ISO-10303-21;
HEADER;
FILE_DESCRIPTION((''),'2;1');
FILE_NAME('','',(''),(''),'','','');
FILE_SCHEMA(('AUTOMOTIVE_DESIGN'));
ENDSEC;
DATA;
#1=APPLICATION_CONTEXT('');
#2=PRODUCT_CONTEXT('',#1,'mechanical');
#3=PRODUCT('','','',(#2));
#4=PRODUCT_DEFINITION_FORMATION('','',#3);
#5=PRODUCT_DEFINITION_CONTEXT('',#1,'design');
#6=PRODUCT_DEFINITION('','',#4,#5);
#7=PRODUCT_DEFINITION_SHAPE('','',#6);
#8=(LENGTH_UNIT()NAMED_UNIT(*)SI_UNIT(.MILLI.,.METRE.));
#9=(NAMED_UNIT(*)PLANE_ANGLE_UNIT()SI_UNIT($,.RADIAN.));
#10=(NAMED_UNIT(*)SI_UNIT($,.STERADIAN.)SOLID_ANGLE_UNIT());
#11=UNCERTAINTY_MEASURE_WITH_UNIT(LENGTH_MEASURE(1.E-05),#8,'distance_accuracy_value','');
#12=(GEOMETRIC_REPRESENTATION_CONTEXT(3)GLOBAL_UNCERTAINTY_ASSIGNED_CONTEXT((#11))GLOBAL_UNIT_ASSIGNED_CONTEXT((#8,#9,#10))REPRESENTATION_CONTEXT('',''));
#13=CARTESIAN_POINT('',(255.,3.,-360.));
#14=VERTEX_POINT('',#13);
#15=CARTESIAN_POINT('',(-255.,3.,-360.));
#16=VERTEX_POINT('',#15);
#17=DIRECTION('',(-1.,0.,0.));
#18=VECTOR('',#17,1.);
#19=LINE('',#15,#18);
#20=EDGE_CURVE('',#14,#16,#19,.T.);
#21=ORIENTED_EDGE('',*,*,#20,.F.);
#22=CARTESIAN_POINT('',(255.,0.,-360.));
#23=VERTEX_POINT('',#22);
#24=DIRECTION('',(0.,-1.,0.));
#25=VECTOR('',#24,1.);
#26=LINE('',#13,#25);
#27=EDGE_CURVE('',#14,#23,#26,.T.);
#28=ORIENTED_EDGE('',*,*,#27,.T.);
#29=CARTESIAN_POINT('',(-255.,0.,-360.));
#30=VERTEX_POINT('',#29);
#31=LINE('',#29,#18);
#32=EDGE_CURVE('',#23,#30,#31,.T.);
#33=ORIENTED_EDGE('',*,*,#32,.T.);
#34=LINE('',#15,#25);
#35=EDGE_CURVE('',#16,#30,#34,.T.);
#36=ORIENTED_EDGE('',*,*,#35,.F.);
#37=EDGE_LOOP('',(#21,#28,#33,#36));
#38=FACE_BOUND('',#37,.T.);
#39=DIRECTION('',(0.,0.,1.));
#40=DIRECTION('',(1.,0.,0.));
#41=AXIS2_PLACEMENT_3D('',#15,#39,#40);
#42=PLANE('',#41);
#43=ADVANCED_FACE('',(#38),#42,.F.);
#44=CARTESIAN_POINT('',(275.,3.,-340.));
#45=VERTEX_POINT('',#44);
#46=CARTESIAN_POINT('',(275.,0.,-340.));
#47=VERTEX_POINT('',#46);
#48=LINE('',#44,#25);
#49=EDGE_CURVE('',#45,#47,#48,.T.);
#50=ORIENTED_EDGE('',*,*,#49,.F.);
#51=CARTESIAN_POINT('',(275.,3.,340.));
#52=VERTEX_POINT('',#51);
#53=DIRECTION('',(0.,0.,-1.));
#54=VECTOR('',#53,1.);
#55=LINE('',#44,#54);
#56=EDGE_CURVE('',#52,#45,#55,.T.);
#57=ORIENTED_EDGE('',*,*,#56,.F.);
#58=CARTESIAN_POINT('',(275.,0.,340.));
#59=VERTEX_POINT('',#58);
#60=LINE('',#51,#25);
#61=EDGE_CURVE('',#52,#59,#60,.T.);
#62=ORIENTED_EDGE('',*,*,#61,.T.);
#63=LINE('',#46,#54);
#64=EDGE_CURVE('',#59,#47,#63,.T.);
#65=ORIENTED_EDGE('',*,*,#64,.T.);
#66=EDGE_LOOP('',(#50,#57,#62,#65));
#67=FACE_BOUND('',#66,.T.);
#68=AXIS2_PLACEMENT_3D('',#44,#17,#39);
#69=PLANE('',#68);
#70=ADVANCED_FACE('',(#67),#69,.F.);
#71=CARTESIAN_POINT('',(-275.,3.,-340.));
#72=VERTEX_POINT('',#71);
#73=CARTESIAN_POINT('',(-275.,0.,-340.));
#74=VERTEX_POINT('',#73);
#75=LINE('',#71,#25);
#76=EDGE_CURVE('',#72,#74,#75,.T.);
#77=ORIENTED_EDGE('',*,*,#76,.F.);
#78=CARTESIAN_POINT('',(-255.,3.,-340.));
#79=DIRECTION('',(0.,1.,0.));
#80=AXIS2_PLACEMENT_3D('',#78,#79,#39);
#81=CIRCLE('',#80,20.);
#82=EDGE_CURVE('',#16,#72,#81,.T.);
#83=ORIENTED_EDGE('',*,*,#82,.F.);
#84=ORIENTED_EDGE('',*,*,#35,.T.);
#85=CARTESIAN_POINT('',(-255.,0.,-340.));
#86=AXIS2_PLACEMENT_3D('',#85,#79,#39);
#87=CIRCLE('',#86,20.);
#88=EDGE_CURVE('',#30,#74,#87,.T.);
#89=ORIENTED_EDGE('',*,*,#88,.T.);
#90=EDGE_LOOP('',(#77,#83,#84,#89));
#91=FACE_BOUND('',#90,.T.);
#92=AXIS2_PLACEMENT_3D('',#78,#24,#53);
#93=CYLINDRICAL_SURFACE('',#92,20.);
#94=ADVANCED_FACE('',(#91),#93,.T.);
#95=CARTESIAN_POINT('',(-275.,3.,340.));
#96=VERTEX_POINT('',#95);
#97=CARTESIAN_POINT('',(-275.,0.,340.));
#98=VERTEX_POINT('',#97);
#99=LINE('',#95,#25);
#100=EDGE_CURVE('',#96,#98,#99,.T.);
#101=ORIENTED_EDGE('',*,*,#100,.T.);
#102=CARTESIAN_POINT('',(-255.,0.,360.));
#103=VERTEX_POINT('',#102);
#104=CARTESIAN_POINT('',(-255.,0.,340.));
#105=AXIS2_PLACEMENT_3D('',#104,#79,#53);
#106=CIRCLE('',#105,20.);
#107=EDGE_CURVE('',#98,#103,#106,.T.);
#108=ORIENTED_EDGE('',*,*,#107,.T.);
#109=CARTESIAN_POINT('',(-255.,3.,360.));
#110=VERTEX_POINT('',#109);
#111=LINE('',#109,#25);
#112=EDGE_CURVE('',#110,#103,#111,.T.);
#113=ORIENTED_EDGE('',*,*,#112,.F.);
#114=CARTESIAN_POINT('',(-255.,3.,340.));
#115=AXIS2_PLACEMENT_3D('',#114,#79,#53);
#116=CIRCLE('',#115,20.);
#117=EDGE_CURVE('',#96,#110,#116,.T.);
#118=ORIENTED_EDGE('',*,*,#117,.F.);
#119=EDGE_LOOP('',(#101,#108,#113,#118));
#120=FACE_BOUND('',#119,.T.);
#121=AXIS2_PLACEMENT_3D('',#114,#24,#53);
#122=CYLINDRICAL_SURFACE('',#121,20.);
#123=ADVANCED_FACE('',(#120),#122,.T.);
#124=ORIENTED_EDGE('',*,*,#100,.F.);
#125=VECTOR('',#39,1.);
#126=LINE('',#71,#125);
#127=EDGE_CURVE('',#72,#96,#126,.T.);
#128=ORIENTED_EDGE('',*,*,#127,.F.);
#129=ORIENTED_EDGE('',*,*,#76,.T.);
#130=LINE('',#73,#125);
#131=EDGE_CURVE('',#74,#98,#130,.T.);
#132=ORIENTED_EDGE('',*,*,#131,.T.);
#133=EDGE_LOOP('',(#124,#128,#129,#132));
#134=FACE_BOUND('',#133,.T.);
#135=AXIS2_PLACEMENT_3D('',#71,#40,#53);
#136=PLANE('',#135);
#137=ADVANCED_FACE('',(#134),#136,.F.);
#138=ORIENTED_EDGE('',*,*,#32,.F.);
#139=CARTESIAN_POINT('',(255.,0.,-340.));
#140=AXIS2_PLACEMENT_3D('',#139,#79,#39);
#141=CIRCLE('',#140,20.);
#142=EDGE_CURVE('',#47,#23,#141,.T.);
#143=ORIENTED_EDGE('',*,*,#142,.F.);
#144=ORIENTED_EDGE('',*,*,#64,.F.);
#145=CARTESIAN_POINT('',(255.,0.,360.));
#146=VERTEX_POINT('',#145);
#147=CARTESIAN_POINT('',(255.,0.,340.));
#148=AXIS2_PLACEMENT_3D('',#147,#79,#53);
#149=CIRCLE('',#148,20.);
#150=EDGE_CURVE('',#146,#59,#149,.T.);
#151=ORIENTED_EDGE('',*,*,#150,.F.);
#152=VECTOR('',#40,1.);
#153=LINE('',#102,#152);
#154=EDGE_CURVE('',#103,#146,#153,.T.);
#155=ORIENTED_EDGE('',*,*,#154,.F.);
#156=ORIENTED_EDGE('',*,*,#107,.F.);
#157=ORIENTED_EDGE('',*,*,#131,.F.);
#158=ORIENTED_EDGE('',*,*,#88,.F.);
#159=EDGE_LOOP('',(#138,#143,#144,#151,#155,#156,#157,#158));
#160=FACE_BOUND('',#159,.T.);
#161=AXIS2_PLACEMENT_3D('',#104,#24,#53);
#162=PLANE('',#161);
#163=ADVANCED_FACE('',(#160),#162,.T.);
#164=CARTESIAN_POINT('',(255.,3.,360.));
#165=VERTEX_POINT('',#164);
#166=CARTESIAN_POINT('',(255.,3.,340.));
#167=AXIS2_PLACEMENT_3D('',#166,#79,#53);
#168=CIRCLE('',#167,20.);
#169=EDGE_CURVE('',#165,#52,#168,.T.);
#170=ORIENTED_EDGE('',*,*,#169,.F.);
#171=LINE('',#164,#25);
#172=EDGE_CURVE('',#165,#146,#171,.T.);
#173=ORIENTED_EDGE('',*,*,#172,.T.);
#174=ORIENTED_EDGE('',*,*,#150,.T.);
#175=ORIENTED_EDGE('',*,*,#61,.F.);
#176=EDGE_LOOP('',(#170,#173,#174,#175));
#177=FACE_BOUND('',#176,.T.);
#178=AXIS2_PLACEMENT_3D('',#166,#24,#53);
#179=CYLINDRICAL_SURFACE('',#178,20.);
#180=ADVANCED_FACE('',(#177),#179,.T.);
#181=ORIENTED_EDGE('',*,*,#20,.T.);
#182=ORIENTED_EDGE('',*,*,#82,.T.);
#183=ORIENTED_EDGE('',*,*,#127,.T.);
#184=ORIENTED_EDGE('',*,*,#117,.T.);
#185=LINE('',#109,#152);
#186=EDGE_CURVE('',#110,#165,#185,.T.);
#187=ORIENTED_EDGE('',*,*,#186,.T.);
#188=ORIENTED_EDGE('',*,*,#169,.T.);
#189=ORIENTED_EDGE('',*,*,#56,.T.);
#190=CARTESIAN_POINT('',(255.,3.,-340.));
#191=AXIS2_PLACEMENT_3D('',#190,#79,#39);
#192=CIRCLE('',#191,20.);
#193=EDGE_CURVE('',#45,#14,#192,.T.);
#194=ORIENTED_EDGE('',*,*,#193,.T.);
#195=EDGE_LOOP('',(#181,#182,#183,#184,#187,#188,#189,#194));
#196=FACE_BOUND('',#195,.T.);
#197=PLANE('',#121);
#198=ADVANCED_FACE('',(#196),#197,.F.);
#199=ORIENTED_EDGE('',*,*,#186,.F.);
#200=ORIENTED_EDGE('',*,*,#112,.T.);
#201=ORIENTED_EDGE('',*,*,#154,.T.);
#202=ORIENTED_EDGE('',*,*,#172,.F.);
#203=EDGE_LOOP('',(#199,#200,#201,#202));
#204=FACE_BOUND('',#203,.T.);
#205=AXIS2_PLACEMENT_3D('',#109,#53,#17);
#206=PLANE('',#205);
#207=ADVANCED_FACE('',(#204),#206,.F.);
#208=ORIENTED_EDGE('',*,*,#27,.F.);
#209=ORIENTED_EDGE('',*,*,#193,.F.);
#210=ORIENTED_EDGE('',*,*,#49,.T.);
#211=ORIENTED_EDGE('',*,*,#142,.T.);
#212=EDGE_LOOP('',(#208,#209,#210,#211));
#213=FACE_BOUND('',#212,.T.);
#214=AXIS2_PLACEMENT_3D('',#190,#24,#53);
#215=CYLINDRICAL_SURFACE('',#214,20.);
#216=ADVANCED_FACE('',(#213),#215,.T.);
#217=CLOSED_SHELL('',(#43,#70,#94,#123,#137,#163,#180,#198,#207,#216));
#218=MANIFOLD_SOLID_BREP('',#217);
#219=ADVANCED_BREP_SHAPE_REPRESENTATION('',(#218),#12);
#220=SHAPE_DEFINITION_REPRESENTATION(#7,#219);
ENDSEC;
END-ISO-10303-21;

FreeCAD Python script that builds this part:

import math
import FreeCAD as App
import Part
import Sketcher
from FreeCAD import Vector
Q = App.Units.Quantity

doc = App.newDocument("Part")
body = doc.addObject("PartDesign::Body", "Body")

# Sketch on XZ plane
sketch1 = body.newObject("Sketcher::SketchObject", "Sketch")
sketch1.AttachmentSupport = (doc.getObject("XZ_Plane"), [""])
sketch1.MapMode = "FlatFace"
sketch1.addGeometry(Part.LineSegment(Vector(255, -360, 0), Vector(-255, -360, 0)), False)
sketch1.addGeometry(Part.ArcOfCircle(Part.Circle(Vector(-255, -340, 0), Vector(0, 0, 1), 20), math.radians(180), math.radians(270)), False)
sketch1.addGeometry(Part.LineSegment(Vector(-275, -340, 0), Vector(-275, 340, 0)), False)
sketch1.addGeometry(Part.ArcOfCircle(Part.Circle(Vector(-255, 340, 0), Vector(0, 0, 1), 20), math.radians(90), math.radians(180)), False)
sketch1.addGeometry(Part.LineSegment(Vector(-255, 360, 0), Vector(255, 360, 0)), False)
sketch1.addGeometry(Part.ArcOfCircle(Part.Circle(Vector(255, 340, 0), Vector(0, 0, 1), 20), math.radians(0), math.radians(90)), False)
sketch1.addGeometry(Part.LineSegment(Vector(275, 340, 0), Vector(275, -340, 0)), False)
sketch1.addGeometry(Part.ArcOfCircle(Part.Circle(Vector(255, -340, 0), Vector(0, 0, 1), 20), math.radians(-90), math.radians(0)), False)
sketch1.addConstraint(Sketcher.Constraint("Tangent", 0, 2, 1, 2))
sketch1.addConstraint(Sketcher.Constraint("Tangent", 1, 1, 2, 1))
sketch1.addConstraint(Sketcher.Constraint("Tangent", 2, 2, 3, 2))
sketch1.addConstraint(Sketcher.Constraint("Tangent", 3, 1, 4, 1))
sketch1.addConstraint(Sketcher.Constraint("Tangent", 4, 2, 5, 2))
sketch1.addConstraint(Sketcher.Constraint("Tangent", 5, 1, 6, 1))
sketch1.addConstraint(Sketcher.Constraint("Tangent", 6, 2, 7, 2))
sketch1.addConstraint(Sketcher.Constraint("Tangent", 7, 1, 0, 1))
sketch1.addConstraint(Sketcher.Constraint("Horizontal", 0))
sketch1.addConstraint(Sketcher.Constraint("Vertical", 2))
sketch1.addConstraint(Sketcher.Constraint("Horizontal", 4))
sketch1.addConstraint(Sketcher.Constraint("Vertical", 6))
sketch1.addConstraint(Sketcher.Constraint("Equal", 1, 3))
sketch1.addConstraint(Sketcher.Constraint("Equal", 3, 5))
sketch1.addConstraint(Sketcher.Constraint("Equal", 5, 7))
sketch1.addConstraint(Sketcher.Constraint("Symmetric", 1, 3, 5, 3, -1, 1))
sketch1.addConstraint(Sketcher.Constraint("Radius", 1, Q("20 mm")))
sketch1.addConstraint(Sketcher.Constraint("DistanceX", 0, 2, 0, 1, Q("510 mm")))
sketch1.addConstraint(Sketcher.Constraint("DistanceY", 2, 1, 2, 2, Q("680 mm")))
pad1 = body.newObject("PartDesign::Pad", "Pad")
pad1.Profile = sketch1
pad1.Length = 3
pad1.Reversed = True

doc.recompute()
